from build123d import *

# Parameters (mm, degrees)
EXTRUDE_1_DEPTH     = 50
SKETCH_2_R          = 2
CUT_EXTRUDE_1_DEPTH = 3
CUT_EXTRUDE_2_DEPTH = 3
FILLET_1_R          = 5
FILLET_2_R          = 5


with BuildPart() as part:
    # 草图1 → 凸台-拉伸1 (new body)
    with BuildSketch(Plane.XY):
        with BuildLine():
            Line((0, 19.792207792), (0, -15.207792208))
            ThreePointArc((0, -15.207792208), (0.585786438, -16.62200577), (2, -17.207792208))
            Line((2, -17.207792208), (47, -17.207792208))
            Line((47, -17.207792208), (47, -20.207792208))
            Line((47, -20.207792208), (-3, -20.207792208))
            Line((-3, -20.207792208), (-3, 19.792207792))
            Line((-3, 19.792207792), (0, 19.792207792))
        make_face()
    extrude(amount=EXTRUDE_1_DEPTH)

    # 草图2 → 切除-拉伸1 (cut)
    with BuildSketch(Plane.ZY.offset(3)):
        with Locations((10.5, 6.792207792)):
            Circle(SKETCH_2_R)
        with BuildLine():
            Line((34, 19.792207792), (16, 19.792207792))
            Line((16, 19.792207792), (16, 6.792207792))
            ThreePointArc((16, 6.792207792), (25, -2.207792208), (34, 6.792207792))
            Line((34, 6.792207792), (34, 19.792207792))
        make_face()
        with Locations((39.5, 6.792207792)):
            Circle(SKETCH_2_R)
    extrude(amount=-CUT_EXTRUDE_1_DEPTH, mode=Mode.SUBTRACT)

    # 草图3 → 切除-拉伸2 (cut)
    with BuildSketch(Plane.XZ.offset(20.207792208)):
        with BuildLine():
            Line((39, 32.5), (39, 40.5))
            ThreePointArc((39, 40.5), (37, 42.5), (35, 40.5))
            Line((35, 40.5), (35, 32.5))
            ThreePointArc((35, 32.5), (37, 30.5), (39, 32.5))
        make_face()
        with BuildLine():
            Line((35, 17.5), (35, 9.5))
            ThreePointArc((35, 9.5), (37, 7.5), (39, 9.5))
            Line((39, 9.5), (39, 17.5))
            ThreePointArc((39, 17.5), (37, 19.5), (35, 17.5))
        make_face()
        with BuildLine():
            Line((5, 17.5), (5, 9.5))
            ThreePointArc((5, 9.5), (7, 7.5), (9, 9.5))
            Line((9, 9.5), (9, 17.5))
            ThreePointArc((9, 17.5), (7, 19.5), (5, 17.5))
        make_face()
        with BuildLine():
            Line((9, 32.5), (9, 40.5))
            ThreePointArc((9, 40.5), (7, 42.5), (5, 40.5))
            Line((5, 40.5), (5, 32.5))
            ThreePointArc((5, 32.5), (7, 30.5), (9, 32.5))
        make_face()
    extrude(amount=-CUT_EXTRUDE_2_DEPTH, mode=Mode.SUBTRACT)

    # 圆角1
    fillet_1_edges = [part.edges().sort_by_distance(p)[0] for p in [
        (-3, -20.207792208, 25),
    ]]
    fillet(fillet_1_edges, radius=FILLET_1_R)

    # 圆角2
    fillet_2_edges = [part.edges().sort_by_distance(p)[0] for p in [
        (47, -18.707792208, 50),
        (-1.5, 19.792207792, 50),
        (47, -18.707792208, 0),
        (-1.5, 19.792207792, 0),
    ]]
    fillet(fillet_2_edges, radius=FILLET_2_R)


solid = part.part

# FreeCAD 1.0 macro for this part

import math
import FreeCAD as App
import Part
import Sketcher
from FreeCAD import Vector
Q = App.Units.Quantity


def edges_at(feature, points):
    """Names of the edges that pass closest to the given points."""
    edges = feature.Shape.Edges
    near = lambda p: min(range(len(edges)), key=lambda i: edges[i].distToShape(Part.Vertex(*p))[0])
    return sorted({f"Edge{near(p) + 1}" for p in points})

doc = App.newDocument("Part")
body = doc.addObject("PartDesign::Body", "Body")

sketch1 = body.newObject("Sketcher::SketchObject", "Sketch")
sketch1.AttachmentSupport = (doc.getObject("XY_Plane"), [""])
sketch1.MapMode = "FlatFace"
sketch1.addGeometry([
    Part.LineSegment(Vector(0, -15.2, 0), Vector(0, 19.8, 0)),
    Part.LineSegment(Vector(0, 19.8, 0), Vector(-3, 19.8, 0)),
    Part.LineSegment(Vector(-3, 19.8, 0), Vector(-3, -20.2, 0)),
    Part.LineSegment(Vector(-3, -20.2, 0), Vector(47, -20.2, 0)),
    Part.LineSegment(Vector(47, -20.2, 0), Vector(47, -17.2, 0)),
    Part.LineSegment(Vector(47, -17.2, 0), Vector(2, -17.2, 0)),
    Part.ArcOfCircle(Part.Circle(Vector(2, -15.2, 0), Vector(0, 0, 1), 2), math.radians(-180), math.radians(-90)),
], False)
sketch1.addConstraint([
    Sketcher.Constraint("Coincident", 0, 2, 1, 1),
    Sketcher.Constraint("Coincident", 1, 2, 2, 1),
    Sketcher.Constraint("Coincident", 2, 2, 3, 1),
    Sketcher.Constraint("Coincident", 3, 2, 4, 1),
    Sketcher.Constraint("Coincident", 4, 2, 5, 1),
    Sketcher.Constraint("Tangent", 5, 2, 6, 2),
    Sketcher.Constraint("Tangent", 6, 1, 0, 1),
    Sketcher.Constraint("Vertical", 0),
    Sketcher.Constraint("Horizontal", 1),
    Sketcher.Constraint("Vertical", 2),
    Sketcher.Constraint("Horizontal", 3),
    Sketcher.Constraint("Vertical", 4),
    Sketcher.Constraint("Horizontal", 5),
    Sketcher.Constraint("PointOnObject", 0, 2, -2),
    Sketcher.Constraint("Equal", 1, 4),
    Sketcher.Constraint("Radius", 6, Q("2 mm")),
    Sketcher.Constraint("DistanceX", 1, 2, 1, 1, Q("3 mm")),
    Sketcher.Constraint("DistanceX", 3, 1, 3, 2, Q("50 mm")),
    Sketcher.Constraint("DistanceY", 0, 1, 0, 2, Q("35 mm")),
    Sketcher.Constraint("DistanceY", 6, 3, -1, 1, Q("15.207792 mm")),
])
pad1 = body.newObject("PartDesign::Pad", "Pad")
pad1.Profile = sketch1
pad1.Length = 50

sketch2 = body.newObject("Sketcher::SketchObject", "Sketch001")
sketch2.AttachmentSupport = (doc.getObject("YZ_Plane"), [""])
sketch2.MapMode = "FlatFace"
sketch2.AttachmentOffset = App.Placement(Vector(0, 0, -3), App.Rotation())
sketch2.addGeometry([
    Part.Circle(Vector(6.8, 10.5, 0), Vector(0, 0, 1), 2),
    Part.LineSegment(Vector(19.8, 34, 0), Vector(19.8, 16, 0)),
    Part.LineSegment(Vector(19.8, 16, 0), Vector(6.8, 16, 0)),
    Part.ArcOfCircle(Part.Circle(Vector(6.8, 25, 0), Vector(0, 0, 1), 9), math.radians(90), math.radians(270)),
    Part.LineSegment(Vector(6.8, 34, 0), Vector(19.8, 34, 0)),
    Part.Circle(Vector(6.8, 39.5, 0), Vector(0, 0, 1), 2),
], False)
sketch2.addConstraint([
    Sketcher.Constraint("Coincident", 1, 2, 2, 1),
    Sketcher.Constraint("Tangent", 2, 2, 3, 2),
    Sketcher.Constraint("Tangent", 3, 1, 4, 1),
    Sketcher.Constraint("Coincident", 4, 2, 1, 1),
    Sketcher.Constraint("Vertical", 1),
    Sketcher.Constraint("Horizontal", 2),
    Sketcher.Constraint("Horizontal", 4),
    Sketcher.Constraint("Equal", 0, 5),
    Sketcher.Constraint("Vertical", 0, 3, 3, 3),
    Sketcher.Constraint("Vertical", 3, 3, 5, 3),
    Sketcher.Constraint("Diameter", 0, Q("4 mm")),
    Sketcher.Constraint("Radius", 3, Q("9 mm")),
    Sketcher.Constraint("DistanceX", 2, 2, 2, 1, Q("13 mm")),
    Sketcher.Constraint("DistanceY", -1, 1, 3, 3, Q("25 mm")),
    Sketcher.Constraint("DistanceY", 0, 3, 5, 3, Q("29 mm")),
    Sketcher.Constraint("DistanceY", -1, 1, 0, 3, Q("10.5 mm")),
    Sketcher.Constraint("DistanceX", -1, 1, 0, 3, Q("6.792208 mm")),
])
pocket1 = body.newObject("PartDesign::Pocket", "Pocket")
pocket1.Profile = sketch2
pocket1.Length = 3
pocket1.Reversed = True

sketch3 = body.newObject("Sketcher::SketchObject", "Sketch002")
sketch3.AttachmentSupport = (doc.getObject("XZ_Plane"), [""])
sketch3.MapMode = "FlatFace"
sketch3.AttachmentOffset = App.Placement(Vector(0, 0, 20.207792), App.Rotation())
sketch3.addGeometry([
    Part.LineSegment(Vector(39, 32.5, 0), Vector(39, 40.5, 0)),
    Part.ArcOfCircle(Part.Circle(Vector(37, 40.5, 0), Vector(0, 0, 1), 2), math.radians(0), math.radians(180)),
    Part.LineSegment(Vector(35, 40.5, 0), Vector(35, 32.5, 0)),
    Part.ArcOfCircle(Part.Circle(Vector(37, 32.5, 0), Vector(0, 0, 1), 2), math.radians(180), math.radians(360)),
    Part.LineSegment(Vector(35, 17.5, 0), Vector(35, 9.5, 0)),
    Part.ArcOfCircle(Part.Circle(Vector(37, 9.5, 0), Vector(0, 0, 1), 2), math.radians(180), math.radians(360)),
    Part.LineSegment(Vector(39, 9.5, 0), Vector(39, 17.5, 0)),
    Part.ArcOfCircle(Part.Circle(Vector(37, 17.5, 0), Vector(0, 0, 1), 2), math.radians(0), math.radians(180)),
    Part.LineSegment(Vector(5, 17.5, 0), Vector(5, 9.5, 0)),
    Part.ArcOfCircle(Part.Circle(Vector(7, 9.5, 0), Vector(0, 0, 1), 2), math.radians(180), math.radians(360)),
    Part.LineSegment(Vector(9, 9.5, 0), Vector(9, 17.5, 0)),
    Part.ArcOfCircle(Part.Circle(Vector(7, 17.5, 0), Vector(0, 0, 1), 2), math.radians(0), math.radians(180)),
    Part.LineSegment(Vector(9, 32.5, 0), Vector(9, 40.5, 0)),
    Part.ArcOfCircle(Part.Circle(Vector(7, 40.5, 0), Vector(0, 0, 1), 2), math.radians(0), math.radians(180)),
    Part.LineSegment(Vector(5, 40.5, 0), Vector(5, 32.5, 0)),
    Part.ArcOfCircle(Part.Circle(Vector(7, 32.5, 0), Vector(0, 0, 1), 2), math.radians(180), math.radians(360)),
], False)
sketch3.addConstraint([
    Sketcher.Constraint("Tangent", 0, 2, 1, 1),
    Sketcher.Constraint("Tangent", 1, 2, 2, 1),
    Sketcher.Constraint("Tangent", 2, 2, 3, 1),
    Sketcher.Constraint("Tangent", 3, 2, 0, 1),
    Sketcher.Constraint("Tangent", 4, 2, 5, 1),
    Sketcher.Constraint("Tangent", 5, 2, 6, 1),
    Sketcher.Constraint("Tangent", 6, 2, 7, 1),
    Sketcher.Constraint("Tangent", 7, 2, 4, 1),
    Sketcher.Constraint("Tangent", 8, 2, 9, 1),
    Sketcher.Constraint("Tangent", 9, 2, 10, 1),
    Sketcher.Constraint("Tangent", 10, 2, 11, 1),
    Sketcher.Constraint("Tangent", 11, 2, 8, 1),
    Sketcher.Constraint("Tangent", 12, 2, 13, 1),
    Sketcher.Constraint("Tangent", 13, 2, 14, 1),
    Sketcher.Constraint("Tangent", 14, 2, 15, 1),
    Sketcher.Constraint("Tangent", 15, 2, 12, 1),
    Sketcher.Constraint("Vertical", 0),
    Sketcher.Constraint("Vertical", 2),
    Sketcher.Constraint("Vertical", 4),
    Sketcher.Constraint("Vertical", 6),
    Sketcher.Constraint("Vertical", 8),
    Sketcher.Constraint("Vertical", 10),
    Sketcher.Constraint("Vertical", 12),
    Sketcher.Constraint("Vertical", 14),
    Sketcher.Constraint("Equal", 3, 5),
    Sketcher.Constraint("Equal", 7, 9),
    Sketcher.Constraint("Equal", 11, 13),
    Sketcher.Constraint("Horizontal", 5, 3, 9, 3),
    Sketcher.Constraint("Horizontal", 7, 3, 11, 3),
    Sketcher.Constraint("Horizontal", 1, 3, 13, 3),
    Sketcher.Constraint("Horizontal", 3, 3, 15, 3),
    Sketcher.Constraint("Vertical", 3, 3, 5, 3),
    Sketcher.Constraint("Vertical", 11, 3, 13, 3),
    Sketcher.Constraint("Equal", 2, 4),
    Sketcher.Constraint("Radius", 1, Q("2 mm")),
    Sketcher.Constraint("DistanceY", 0, 1, 0, 2, Q("8 mm")),
    Sketcher.Constraint("DistanceX", -1, 1, 1, 3, Q("37 mm")),
    Sketcher.Constraint("DistanceX", -1, 1, 9, 3, Q("7 mm")),
    Sketcher.Constraint("DistanceY", 5, 3, 3, 3, Q("23 mm")),
    Sketcher.Constraint("DistanceY", -1, 1, 1, 3, Q("40.5 mm")),
])
pocket2 = body.newObject("PartDesign::Pocket", "Pocket001")
pocket2.Profile = sketch3
pocket2.Length = 3
doc.recompute()

fillet = body.newObject("PartDesign::Fillet", "Fillet")
fillet.Base = (pocket2, edges_at(pocket2, [(-3, -20.208, 25)]))
fillet.Radius = 5
doc.recompute()

fillet2 = body.newObject("PartDesign::Fillet", "Fillet001")
fillet2.Base = (fillet, edges_at(fillet, [
    (47, -18.708, 50),
    (-1.5, 19.792, 50),
    (47, -18.708, 0),
    (-1.5, 19.792, 0),
]))
fillet2.Radius = 5

doc.recompute()
